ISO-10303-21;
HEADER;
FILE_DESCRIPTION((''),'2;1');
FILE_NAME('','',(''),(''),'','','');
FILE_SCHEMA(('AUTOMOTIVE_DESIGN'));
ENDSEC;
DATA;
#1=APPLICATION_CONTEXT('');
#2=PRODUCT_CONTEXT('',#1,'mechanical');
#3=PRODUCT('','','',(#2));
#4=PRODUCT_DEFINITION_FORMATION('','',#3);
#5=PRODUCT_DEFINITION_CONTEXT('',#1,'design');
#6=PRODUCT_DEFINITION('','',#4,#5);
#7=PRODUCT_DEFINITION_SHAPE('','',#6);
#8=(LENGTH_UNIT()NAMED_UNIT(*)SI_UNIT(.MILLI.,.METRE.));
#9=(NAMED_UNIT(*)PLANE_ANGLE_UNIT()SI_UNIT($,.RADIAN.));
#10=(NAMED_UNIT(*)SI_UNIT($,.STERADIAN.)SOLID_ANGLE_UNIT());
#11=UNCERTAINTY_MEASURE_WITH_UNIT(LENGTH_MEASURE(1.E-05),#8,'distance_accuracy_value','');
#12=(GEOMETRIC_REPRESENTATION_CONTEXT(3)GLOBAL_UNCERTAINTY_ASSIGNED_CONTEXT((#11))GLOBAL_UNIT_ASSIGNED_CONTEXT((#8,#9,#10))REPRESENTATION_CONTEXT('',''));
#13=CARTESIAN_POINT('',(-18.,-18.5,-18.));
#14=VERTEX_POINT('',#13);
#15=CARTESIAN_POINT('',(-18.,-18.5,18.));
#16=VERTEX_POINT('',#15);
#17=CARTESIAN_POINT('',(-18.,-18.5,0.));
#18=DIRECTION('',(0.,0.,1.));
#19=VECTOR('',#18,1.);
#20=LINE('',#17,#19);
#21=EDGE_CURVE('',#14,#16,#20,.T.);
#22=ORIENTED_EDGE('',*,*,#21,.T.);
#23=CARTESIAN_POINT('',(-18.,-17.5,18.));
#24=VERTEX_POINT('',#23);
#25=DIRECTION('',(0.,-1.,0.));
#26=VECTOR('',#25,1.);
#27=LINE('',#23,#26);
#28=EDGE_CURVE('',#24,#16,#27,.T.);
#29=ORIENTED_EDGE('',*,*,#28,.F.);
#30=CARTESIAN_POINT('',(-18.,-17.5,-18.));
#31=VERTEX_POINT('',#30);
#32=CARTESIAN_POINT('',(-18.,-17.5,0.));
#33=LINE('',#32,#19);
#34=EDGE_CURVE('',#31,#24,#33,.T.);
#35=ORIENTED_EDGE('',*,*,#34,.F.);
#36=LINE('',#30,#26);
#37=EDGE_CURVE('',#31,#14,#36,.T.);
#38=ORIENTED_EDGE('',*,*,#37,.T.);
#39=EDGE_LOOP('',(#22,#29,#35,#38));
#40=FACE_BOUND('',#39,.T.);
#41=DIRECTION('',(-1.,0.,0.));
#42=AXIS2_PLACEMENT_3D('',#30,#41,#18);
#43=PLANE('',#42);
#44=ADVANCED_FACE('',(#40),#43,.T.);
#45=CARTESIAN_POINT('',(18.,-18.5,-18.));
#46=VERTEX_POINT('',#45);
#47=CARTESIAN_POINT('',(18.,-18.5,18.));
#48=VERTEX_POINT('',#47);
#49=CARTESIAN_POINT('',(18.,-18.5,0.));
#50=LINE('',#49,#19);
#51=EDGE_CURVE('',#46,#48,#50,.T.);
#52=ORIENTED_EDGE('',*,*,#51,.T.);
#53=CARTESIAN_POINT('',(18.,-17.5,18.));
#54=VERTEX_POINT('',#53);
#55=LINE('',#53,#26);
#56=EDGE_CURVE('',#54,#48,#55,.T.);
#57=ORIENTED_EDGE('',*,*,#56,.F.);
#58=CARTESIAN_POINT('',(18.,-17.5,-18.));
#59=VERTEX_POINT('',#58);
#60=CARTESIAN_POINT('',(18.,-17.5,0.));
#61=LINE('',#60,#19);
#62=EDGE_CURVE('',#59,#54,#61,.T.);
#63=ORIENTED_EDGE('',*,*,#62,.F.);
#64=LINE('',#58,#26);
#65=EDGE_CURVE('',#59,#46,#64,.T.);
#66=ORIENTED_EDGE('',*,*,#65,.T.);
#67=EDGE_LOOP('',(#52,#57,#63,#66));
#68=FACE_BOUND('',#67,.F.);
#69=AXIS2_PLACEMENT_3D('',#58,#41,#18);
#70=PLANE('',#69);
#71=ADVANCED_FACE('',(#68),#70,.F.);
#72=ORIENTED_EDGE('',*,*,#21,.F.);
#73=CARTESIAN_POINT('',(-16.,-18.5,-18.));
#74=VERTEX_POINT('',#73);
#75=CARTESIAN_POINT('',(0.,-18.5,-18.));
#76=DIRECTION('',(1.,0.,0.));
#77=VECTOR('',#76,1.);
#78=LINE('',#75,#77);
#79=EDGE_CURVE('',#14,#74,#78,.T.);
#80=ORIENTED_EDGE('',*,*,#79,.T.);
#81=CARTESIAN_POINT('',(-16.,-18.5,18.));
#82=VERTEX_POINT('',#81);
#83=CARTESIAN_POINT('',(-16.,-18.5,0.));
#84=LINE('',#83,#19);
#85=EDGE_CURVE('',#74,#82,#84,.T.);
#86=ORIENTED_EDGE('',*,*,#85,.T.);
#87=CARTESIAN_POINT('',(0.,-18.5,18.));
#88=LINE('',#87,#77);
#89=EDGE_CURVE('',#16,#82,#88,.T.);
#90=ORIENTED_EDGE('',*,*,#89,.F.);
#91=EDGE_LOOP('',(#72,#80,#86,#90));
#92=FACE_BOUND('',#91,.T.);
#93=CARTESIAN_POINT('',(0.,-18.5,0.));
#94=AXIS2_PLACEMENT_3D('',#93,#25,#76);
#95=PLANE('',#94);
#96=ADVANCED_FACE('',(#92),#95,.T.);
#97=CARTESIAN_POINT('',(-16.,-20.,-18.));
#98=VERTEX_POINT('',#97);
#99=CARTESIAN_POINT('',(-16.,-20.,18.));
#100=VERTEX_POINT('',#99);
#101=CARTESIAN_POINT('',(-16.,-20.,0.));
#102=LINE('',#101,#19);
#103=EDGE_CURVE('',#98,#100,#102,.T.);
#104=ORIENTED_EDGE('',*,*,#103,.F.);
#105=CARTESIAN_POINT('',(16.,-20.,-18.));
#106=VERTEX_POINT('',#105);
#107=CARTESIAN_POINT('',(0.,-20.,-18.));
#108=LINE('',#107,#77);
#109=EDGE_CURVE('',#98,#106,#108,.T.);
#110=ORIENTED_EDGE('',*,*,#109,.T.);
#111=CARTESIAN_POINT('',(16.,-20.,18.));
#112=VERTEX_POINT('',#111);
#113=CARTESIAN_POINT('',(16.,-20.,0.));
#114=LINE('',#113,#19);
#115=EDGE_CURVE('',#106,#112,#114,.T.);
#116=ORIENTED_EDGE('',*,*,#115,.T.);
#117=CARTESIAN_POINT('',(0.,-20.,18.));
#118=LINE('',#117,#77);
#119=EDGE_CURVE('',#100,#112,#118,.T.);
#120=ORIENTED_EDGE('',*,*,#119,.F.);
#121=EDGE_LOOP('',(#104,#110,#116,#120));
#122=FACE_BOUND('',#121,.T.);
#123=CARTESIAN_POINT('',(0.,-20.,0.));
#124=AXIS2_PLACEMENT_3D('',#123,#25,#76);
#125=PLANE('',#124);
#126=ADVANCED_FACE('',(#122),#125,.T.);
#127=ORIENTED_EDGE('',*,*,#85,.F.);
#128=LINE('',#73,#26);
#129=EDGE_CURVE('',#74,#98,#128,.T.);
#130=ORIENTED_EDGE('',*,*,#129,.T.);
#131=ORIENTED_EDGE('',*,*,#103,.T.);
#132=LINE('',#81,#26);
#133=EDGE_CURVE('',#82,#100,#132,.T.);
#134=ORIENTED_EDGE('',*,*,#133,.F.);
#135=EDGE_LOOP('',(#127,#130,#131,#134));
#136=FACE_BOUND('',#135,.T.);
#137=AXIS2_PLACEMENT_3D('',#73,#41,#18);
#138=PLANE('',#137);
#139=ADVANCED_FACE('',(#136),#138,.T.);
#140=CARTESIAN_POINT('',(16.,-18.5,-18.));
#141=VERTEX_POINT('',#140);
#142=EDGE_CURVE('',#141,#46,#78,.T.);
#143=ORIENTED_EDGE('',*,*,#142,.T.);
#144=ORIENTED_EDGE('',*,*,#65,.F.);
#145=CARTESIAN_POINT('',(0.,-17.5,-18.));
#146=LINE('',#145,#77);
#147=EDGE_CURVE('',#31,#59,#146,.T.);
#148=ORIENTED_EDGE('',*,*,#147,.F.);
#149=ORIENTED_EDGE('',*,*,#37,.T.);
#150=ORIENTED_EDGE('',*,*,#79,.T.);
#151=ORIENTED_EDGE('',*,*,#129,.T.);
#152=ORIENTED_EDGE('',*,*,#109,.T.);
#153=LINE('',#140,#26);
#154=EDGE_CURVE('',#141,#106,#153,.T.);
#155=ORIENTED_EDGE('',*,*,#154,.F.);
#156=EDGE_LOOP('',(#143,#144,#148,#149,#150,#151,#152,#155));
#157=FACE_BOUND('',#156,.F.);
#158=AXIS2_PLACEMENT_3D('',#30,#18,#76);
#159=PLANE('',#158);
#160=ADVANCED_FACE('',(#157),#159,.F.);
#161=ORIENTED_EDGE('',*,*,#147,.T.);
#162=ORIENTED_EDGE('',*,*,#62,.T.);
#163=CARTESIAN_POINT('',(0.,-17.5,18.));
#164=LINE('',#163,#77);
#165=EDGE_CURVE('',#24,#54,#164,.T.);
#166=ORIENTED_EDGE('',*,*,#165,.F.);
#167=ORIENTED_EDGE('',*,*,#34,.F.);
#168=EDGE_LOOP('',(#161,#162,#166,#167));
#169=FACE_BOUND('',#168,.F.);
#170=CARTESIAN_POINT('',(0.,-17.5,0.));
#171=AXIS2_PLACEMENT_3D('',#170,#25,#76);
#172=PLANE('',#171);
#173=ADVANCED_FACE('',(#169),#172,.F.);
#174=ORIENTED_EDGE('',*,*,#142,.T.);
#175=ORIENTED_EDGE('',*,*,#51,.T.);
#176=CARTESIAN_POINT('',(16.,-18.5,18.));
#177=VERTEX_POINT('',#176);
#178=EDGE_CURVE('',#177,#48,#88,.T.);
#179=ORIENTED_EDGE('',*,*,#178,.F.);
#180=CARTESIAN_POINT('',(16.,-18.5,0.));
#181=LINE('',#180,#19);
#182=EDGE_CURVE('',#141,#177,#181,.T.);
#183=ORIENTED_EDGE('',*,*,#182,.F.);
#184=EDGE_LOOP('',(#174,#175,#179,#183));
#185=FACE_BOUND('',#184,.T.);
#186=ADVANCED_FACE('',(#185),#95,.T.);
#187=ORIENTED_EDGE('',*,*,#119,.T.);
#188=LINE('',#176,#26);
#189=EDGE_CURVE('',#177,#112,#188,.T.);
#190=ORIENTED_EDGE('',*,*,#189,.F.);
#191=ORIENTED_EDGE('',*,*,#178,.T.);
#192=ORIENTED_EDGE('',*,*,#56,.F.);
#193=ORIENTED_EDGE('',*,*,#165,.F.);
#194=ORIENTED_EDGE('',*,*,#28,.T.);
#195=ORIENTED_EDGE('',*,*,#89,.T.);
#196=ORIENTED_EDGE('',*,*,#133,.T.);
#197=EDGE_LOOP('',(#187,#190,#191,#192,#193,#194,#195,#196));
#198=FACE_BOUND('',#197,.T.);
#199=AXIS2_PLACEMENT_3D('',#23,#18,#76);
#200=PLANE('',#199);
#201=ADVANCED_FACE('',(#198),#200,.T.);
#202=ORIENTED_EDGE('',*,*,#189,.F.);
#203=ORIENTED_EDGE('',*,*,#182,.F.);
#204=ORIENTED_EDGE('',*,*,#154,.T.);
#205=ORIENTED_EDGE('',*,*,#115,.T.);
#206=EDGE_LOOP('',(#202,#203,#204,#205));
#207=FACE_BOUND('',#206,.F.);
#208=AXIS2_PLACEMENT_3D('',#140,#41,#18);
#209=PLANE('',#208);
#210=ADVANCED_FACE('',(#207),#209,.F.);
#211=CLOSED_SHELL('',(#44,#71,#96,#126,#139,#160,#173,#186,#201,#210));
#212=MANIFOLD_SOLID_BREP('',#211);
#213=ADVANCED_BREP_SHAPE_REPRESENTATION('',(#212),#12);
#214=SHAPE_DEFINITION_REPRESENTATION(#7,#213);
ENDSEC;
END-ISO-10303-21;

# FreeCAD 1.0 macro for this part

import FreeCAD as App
import Part
import Sketcher
Q = App.Units.Quantity


def add_polygon(sketch, points):
    """Adds a closed chain of lines whose ends are joined by coincident constraints."""
    first, n = sketch.GeometryCount, len(points)
    for a, b in zip(points, points[1:] + points[:1]):
        sketch.addGeometry(Part.LineSegment(App.Vector(*a, 0), App.Vector(*b, 0)), False)
    for i in range(n):
        sketch.addConstraint(Sketcher.Constraint("Coincident", first + i, 2, first + (i + 1) % n, 1))

doc = App.newDocument("Part")
params = doc.addObject("Spreadsheet::Sheet", "Params")
for row, (alias, value) in enumerate([
    ("sketch1_width", "32 mm"),
    ("sketch1_height", "36 mm"),
    ("pad1_length", "1.5 mm"),
    ("sketch2_width", "36 mm"),
    ("pad2_length", "1 mm"),
], start=1):
    params.set(f"A{row}", alias)
    params.set(f"B{row}", "=" + value)
    params.setAlias(f"B{row}", alias)

body = doc.addObject("PartDesign::Body", "Body")

# Sketch on XY plane
sketch1 = body.newObject("Sketcher::SketchObject", "Sketch")
sketch1.AttachmentSupport = (doc.getObject("XY_Plane"), [""])
sketch1.MapMode = "FlatFace"
sketch1.AttachmentOffset = App.Placement(App.Vector(0, 0, 1), App.Rotation())
add_polygon(sketch1, [(-16, 18), (-16, -18), (16, -18), (16, 18)])  # lines 0-3
sketch1.addConstraint([
    Sketcher.Constraint("Vertical", 0),
    Sketcher.Constraint("Horizontal", 1),
    Sketcher.Constraint("Vertical", 2),
    Sketcher.Constraint("Horizontal", 3),
    Sketcher.Constraint("Symmetric", 0, 2, 2, 2, -1, 1),
    Sketcher.Constraint("DistanceX", 1, 1, 1, 2, Q("32 mm")),
    Sketcher.Constraint("DistanceY", 0, 2, 0, 1, Q("36 mm")),
])
sketch1.setExpression("Constraints[9]", "Params.sketch1_width")
sketch1.setExpression("Constraints[10]", "Params.sketch1_height")
pad1 = body.newObject("PartDesign::Pad", "Pad")
pad1.Profile = sketch1
pad1.setExpression("Length", "Params.pad1_length")
body2 = doc.addObject("PartDesign::Body", "Body001")

# Sketch on XY plane
sketch2 = body2.newObject("Sketcher::SketchObject", "Sketch001")
sketch2.AttachmentSupport = (doc.getObject("XY_Plane001"), [""])
sketch2.MapMode = "FlatFace"
add_polygon(sketch2, [(-18, 18), (-18, -18), (18, -18), (18, 18)])  # lines 0-3
sketch2.addConstraint([
    Sketcher.Constraint("Vertical", 0),
    Sketcher.Constraint("Horizontal", 1),
    Sketcher.Constraint("Vertical", 2),
    Sketcher.Constraint("Horizontal", 3),
    Sketcher.Constraint("Symmetric", 0, 2, 2, 2, -1, 1),
    Sketcher.Constraint("Equal", 3, 0),
    Sketcher.Constraint("DistanceX", 1, 1, 1, 2, Q("36 mm")),
])
sketch2.setExpression("Constraints[10]", "Params.sketch2_width")
pad2 = body2.newObject("PartDesign::Pad", "Pad001")
pad2.Profile = sketch2
pad2.setExpression("Length", "Params.pad2_length")
doc.recompute()

boolean = body2.newObject("PartDesign::Boolean", "Boolean")
boolean.Type = "Fuse"
boolean.addObjects([body])
body3 = doc.addObject("PartDesign::Body", "Body002")
doc.recompute()

body2.Placement = App.Placement(App.Vector(0, -17.5, 0), App.Rotation(App.Vector(1, 0, 0), 90))
boolean2 = body3.newObject("PartDesign::Boolean", "Boolean001")
boolean2.Type = "Fuse"
boolean2.addObjects([body2])

doc.recompute()
